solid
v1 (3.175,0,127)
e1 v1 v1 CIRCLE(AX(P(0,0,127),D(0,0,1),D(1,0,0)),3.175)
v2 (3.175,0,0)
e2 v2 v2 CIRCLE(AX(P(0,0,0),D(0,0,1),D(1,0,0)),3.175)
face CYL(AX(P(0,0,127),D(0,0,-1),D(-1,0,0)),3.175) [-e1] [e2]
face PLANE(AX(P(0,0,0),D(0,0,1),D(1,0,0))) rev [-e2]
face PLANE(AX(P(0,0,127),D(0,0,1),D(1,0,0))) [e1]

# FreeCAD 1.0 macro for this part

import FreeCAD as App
import Part
import Sketcher

V = App.Vector
Q = App.Units.Quantity

doc = App.newDocument("Part")
params = doc.addObject("Spreadsheet::Sheet", "Params")
for row, (alias, value) in enumerate([
    ("sketch1_diameter", "0.25 in"),
    ("pad1_length", "5 in"),
], start=1):
    params.set(f"A{row}", alias)
    params.set(f"B{row}", "=" + value)
    params.setAlias(f"B{row}", alias)

body = doc.addObject("PartDesign::Body", "Body")

sketch1 = body.newObject("Sketcher::SketchObject", "Sketch")
sketch1.AttachmentSupport = (doc.getObject("XY_Plane"), [""])
sketch1.MapMode = "FlatFace"
sketch1.addGeometry(Part.Circle(V(0, 0, 0), V(0, 0, 1), 3.2), False)
sketch1.addConstraint([
    Sketcher.Constraint("Coincident", 0, 3, -1, 1),
    Sketcher.Constraint("Diameter", 0, Q("0.25 in")),
])
sketch1.setExpression("Constraints[1]", "Params.sketch1_diameter")
pad1 = body.newObject("PartDesign::Pad", "Pad")
pad1.Profile = sketch1
pad1.setExpression("Length", "Params.pad1_length")

doc.recompute()
